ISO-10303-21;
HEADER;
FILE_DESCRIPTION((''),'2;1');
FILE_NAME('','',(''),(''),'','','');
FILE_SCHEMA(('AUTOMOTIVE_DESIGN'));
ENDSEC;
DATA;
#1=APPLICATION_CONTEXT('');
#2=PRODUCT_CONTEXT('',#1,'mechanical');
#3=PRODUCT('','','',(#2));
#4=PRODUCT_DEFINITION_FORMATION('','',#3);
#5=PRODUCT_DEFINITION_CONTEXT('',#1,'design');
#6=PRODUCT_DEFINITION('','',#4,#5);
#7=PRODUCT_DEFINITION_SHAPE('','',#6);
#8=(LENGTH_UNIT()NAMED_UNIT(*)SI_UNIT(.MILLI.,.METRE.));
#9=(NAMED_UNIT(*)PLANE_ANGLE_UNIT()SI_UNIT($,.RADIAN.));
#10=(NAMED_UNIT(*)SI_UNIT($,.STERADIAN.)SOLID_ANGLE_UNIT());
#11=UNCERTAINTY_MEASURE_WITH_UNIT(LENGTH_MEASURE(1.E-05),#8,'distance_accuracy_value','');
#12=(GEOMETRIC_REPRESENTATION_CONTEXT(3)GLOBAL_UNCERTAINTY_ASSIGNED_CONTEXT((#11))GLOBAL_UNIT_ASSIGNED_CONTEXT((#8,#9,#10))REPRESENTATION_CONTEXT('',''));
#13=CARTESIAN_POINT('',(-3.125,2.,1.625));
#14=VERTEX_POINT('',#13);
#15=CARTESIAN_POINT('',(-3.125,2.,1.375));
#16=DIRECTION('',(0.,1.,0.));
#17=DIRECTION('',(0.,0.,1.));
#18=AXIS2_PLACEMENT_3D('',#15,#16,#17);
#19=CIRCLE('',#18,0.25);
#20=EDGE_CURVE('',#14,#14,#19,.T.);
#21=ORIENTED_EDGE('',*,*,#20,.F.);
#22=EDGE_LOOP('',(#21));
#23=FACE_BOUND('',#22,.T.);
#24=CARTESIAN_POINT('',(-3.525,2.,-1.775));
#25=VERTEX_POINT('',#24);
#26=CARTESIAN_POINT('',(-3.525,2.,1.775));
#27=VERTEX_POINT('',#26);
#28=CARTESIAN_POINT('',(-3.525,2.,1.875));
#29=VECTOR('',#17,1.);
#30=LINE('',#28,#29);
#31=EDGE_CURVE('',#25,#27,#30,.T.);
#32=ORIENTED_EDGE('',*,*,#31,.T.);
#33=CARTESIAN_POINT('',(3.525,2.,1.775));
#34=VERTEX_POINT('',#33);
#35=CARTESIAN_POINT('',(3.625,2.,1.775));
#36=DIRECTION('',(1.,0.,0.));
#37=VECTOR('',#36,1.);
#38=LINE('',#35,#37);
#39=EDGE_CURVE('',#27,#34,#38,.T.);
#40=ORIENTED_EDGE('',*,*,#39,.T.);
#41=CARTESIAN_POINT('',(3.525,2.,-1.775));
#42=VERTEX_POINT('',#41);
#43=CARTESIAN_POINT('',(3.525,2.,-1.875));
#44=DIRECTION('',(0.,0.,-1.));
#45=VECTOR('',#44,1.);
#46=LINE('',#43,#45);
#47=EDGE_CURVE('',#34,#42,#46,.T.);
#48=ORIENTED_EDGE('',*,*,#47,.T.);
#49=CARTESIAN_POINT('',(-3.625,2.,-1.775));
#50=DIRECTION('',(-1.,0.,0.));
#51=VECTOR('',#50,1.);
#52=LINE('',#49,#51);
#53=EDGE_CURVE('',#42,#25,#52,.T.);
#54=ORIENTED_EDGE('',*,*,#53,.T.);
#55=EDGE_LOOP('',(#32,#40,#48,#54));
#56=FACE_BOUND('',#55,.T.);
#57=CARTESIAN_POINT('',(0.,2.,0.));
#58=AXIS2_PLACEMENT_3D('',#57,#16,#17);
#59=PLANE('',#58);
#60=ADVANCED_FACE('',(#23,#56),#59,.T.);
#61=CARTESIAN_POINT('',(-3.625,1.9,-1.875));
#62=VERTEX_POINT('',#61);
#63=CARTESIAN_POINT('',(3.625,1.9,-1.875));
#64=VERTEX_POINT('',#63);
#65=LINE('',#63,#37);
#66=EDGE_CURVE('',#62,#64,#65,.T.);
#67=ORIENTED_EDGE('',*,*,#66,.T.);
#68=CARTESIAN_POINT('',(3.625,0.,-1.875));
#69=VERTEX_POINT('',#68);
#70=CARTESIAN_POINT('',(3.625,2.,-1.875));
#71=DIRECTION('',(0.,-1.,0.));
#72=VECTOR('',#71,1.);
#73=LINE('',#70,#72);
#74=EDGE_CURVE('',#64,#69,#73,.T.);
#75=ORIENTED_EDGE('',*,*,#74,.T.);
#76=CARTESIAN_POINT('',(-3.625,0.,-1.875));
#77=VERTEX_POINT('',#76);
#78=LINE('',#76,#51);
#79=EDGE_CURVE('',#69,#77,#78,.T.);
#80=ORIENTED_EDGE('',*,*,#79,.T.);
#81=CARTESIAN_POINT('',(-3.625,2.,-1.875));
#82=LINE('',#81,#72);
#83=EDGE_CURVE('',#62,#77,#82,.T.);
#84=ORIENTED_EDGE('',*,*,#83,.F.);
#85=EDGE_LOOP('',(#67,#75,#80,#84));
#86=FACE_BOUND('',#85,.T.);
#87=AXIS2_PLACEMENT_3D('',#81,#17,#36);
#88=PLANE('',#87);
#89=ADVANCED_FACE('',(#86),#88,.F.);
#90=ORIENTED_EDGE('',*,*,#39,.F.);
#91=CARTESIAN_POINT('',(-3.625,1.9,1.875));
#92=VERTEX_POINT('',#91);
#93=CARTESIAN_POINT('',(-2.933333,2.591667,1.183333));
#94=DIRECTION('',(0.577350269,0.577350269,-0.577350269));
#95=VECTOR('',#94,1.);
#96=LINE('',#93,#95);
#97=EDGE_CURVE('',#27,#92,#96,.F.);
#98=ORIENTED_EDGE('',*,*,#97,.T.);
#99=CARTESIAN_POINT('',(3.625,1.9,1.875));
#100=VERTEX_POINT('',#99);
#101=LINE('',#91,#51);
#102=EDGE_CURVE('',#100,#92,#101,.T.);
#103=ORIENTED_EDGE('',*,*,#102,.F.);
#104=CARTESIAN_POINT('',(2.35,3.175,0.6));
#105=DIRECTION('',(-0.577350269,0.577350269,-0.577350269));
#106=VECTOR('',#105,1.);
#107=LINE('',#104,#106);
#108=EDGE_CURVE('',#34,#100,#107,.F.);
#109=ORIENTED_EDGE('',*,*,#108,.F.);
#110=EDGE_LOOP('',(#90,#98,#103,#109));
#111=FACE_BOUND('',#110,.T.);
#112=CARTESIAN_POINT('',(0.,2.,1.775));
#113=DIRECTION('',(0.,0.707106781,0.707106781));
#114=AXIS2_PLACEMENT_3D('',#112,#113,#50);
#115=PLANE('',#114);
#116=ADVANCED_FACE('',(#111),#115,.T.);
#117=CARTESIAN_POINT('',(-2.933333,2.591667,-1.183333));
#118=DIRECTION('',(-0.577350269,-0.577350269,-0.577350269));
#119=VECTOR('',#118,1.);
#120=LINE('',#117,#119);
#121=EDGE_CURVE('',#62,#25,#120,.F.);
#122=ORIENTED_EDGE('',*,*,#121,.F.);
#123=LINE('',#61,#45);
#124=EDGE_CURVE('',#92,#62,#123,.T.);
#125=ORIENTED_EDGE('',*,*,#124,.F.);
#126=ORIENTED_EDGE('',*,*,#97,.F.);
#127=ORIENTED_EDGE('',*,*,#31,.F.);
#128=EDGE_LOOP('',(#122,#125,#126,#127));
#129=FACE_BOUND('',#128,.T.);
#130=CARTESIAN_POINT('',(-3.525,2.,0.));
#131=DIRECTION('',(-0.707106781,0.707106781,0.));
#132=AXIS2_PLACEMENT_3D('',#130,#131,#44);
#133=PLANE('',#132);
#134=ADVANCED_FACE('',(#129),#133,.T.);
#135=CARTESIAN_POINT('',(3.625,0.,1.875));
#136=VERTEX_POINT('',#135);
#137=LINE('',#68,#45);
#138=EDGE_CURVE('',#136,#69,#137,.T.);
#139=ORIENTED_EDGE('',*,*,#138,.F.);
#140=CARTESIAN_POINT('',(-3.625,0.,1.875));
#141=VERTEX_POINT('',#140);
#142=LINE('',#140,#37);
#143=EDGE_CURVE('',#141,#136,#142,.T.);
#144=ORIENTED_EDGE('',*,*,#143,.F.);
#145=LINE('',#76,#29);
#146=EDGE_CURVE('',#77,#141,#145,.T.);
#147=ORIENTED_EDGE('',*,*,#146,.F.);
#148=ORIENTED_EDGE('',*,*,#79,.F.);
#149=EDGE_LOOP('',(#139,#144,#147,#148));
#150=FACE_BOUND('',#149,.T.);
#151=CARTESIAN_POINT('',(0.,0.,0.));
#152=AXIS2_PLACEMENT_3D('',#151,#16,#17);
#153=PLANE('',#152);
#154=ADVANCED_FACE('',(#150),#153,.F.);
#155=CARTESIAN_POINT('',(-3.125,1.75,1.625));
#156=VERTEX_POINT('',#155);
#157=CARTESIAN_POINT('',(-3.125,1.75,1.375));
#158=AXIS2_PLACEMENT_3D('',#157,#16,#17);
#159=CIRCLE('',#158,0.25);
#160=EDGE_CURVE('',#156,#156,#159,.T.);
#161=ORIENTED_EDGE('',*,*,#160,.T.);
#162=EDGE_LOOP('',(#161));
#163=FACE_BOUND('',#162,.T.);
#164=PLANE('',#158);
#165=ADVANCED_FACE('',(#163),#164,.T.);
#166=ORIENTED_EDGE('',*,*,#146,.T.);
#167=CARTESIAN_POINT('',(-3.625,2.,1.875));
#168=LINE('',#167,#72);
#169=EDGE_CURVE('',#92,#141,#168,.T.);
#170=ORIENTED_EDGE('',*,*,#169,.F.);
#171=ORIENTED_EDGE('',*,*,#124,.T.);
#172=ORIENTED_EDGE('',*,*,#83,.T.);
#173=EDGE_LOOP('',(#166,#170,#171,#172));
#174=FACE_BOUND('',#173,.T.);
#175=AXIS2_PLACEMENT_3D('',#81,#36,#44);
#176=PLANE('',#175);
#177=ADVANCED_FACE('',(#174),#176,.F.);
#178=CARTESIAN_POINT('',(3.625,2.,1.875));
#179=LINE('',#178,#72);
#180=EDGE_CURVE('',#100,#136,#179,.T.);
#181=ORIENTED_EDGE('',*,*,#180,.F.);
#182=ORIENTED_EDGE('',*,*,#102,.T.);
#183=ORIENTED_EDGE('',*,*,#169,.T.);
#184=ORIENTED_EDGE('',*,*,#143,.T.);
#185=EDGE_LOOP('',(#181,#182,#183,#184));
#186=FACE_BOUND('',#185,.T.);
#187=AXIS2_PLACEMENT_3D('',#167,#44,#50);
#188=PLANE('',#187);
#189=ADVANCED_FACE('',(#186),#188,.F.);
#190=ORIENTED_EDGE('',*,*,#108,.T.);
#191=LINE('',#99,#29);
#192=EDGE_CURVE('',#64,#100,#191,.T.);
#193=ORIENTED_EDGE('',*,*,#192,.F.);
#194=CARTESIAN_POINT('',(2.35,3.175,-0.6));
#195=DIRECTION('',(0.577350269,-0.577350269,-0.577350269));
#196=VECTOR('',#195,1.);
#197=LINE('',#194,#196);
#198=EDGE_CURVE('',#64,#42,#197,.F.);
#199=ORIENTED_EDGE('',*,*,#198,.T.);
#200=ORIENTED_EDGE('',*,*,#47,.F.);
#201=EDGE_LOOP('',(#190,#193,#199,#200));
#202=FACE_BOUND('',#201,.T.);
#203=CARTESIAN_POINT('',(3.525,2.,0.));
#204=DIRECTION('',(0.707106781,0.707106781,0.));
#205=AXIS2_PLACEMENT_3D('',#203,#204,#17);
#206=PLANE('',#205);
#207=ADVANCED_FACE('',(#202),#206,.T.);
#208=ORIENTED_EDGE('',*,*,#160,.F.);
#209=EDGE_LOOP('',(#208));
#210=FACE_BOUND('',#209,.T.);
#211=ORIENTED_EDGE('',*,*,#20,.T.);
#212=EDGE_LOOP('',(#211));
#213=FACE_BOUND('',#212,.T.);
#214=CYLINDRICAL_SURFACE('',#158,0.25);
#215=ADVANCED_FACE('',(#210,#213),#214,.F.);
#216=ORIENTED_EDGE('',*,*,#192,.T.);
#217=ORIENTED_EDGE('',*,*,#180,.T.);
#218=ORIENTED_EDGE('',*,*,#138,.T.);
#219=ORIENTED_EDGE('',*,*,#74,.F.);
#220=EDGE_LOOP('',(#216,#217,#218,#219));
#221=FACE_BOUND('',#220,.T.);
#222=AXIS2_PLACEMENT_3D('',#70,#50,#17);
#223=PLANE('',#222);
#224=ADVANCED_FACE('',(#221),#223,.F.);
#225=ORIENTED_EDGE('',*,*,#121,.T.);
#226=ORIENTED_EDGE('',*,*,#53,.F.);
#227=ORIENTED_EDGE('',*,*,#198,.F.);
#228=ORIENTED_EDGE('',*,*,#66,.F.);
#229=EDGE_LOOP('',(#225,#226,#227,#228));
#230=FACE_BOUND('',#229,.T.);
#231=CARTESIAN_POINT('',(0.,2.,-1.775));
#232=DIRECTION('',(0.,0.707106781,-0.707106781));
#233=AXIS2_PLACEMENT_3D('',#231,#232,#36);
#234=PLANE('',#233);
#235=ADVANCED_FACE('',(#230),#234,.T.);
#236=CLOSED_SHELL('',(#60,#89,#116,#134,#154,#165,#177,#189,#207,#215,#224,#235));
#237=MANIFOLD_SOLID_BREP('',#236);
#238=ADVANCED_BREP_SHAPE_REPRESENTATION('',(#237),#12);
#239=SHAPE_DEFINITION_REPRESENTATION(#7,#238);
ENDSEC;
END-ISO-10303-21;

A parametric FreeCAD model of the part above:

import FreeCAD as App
import Part
import Sketcher

V = App.Vector
Q = App.Units.Quantity


def edges_at(feature, points):
    """Names of the edges that pass closest to the given points."""
    edges = feature.Shape.Edges
    near = lambda p: min(range(len(edges)), key=lambda i: edges[i].distToShape(Part.Vertex(*p))[0])
    return sorted({f"Edge{near(p) + 1}" for p in points})


def add_polygon(sketch, points):
    """Adds a closed chain of lines whose ends are joined by coincident constraints."""
    first, n = sketch.GeometryCount, len(points)
    for a, b in zip(points, points[1:] + points[:1]):
        sketch.addGeometry(Part.LineSegment(App.Vector(*a, 0), App.Vector(*b, 0)), False)
    for i in range(n):
        sketch.addConstraint(Sketcher.Constraint("Coincident", first + i, 2, first + (i + 1) % n, 1))

doc = App.newDocument("Part")
body = doc.addObject("PartDesign::Body", "Body")

# Sketch on XZ plane
sketch1 = body.newObject("Sketcher::SketchObject", "Sketch")
sketch1.AttachmentSupport = (doc.getObject("XZ_Plane"), [""])
sketch1.MapMode = "FlatFace"
add_polygon(sketch1, [(-3.6, -1.9), (-3.6, 1.9), (3.6, 1.9), (3.6, -1.9)])  # lines 0-3
sketch1.addConstraint([
    Sketcher.Constraint("Vertical", 0),
    Sketcher.Constraint("Horizontal", 1),
    Sketcher.Constraint("Vertical", 2),
    Sketcher.Constraint("Horizontal", 3),
    Sketcher.Constraint("Symmetric", 0, 2, 2, 2, -1, 1),
    Sketcher.Constraint("DistanceX", 1, 1, 1, 2, Q("7.25 mm")),
    Sketcher.Constraint("DistanceY", 0, 1, 0, 2, Q("3.75 mm")),
])
pad1 = body.newObject("PartDesign::Pad", "Pad")
pad1.Profile = sketch1
pad1.Length = 2
pad1.Reversed = True

# Sketch on XZ plane
sketch2 = body.newObject("Sketcher::SketchObject", "Sketch001")
sketch2.AttachmentSupport = (doc.getObject("XZ_Plane"), [""])
sketch2.MapMode = "FlatFace"
sketch2.AttachmentOffset = App.Placement(V(0, 0, -2), App.Rotation())
sketch2.addGeometry(Part.Circle(V(-3.12, 1.38, 0), V(0, 0, 1), 0.25), False)
sketch2.addConstraint([
    Sketcher.Constraint("Diameter", 0, Q("0.5 mm")),
    Sketcher.Constraint("DistanceX", 0, 3, -1, 1, Q("3.125 mm")),
    Sketcher.Constraint("DistanceY", -1, 1, 0, 3, Q("1.375 mm")),
])
pocket1 = body.newObject("PartDesign::Pocket", "Pocket")
pocket1.Profile = sketch2
pocket1.Length = 0.25
pocket1.Reversed = True
doc.recompute()

chamfer = body.newObject("PartDesign::Chamfer", "Chamfer")
chamfer.Base = (pocket1, edges_at(pocket1, [
    (3.625, 2, 0),
    (0, 2, -1.875),
    (-3.625, 2, 0),
    (0, 2, 1.875),
]))
chamfer.Size = 0.1

doc.recompute()
